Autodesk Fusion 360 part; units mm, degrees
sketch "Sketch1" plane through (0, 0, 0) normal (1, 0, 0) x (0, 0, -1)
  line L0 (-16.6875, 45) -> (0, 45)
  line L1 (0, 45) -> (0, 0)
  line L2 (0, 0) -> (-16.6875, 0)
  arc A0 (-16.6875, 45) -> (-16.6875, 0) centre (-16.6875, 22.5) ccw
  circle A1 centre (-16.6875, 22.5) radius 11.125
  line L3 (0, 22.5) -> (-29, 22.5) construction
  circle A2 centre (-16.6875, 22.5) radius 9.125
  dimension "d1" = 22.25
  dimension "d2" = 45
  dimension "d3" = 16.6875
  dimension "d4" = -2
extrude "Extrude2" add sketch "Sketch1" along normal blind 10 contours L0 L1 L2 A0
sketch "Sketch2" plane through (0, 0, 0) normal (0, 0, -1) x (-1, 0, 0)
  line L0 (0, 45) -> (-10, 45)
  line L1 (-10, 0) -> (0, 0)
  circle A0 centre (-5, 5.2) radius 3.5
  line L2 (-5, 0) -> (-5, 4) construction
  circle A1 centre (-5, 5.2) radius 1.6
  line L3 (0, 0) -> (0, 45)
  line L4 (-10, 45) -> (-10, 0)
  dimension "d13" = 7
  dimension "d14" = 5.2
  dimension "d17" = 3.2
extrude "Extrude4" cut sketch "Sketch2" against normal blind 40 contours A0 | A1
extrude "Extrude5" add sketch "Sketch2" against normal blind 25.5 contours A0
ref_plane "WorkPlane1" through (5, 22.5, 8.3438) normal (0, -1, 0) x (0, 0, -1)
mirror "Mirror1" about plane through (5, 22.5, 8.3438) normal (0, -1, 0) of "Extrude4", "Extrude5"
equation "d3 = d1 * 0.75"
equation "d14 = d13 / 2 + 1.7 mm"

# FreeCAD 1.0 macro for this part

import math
import FreeCAD as App
import Part
import Sketcher
Q = App.Units.Quantity

doc = App.newDocument("Part")
body = doc.addObject("PartDesign::Body", "Body")

sketch1 = body.newObject("Sketcher::SketchObject", "Sketch")
sketch1.AttachmentSupport = (doc.getObject("YZ_Plane"), [""])
sketch1.MapMode = "FlatFace"
sketch1.addGeometry(Part.LineSegment(App.Vector(45, 0, 0), App.Vector(45, 17, 0)), False)
sketch1.addGeometry(Part.ArcOfCircle(Part.Circle(App.Vector(22, 17, 0), App.Vector(0, 0, 1), 22), math.radians(0), math.radians(180)), False)
sketch1.addGeometry(Part.LineSegment(App.Vector(0, 17, 0), App.Vector(0, 0, 0)), False)
sketch1.addGeometry(Part.LineSegment(App.Vector(0, 0, 0), App.Vector(45, 0, 0)), False)
sketch1.addGeometry(Part.Circle(App.Vector(22, 17, 0), App.Vector(0, 0, 1), 11), False)
sketch1.addConstraint(Sketcher.Constraint("Tangent", 0, 2, 1, 1))
sketch1.addConstraint(Sketcher.Constraint("Tangent", 1, 2, 2, 1))
sketch1.addConstraint(Sketcher.Constraint("Coincident", 2, 2, 3, 1))
sketch1.addConstraint(Sketcher.Constraint("Coincident", 3, 2, 0, 1))
sketch1.addConstraint(Sketcher.Constraint("Vertical", 0))
sketch1.addConstraint(Sketcher.Constraint("Vertical", 2))
sketch1.addConstraint(Sketcher.Constraint("Horizontal", 3))
sketch1.addConstraint(Sketcher.Constraint("Coincident", 2, 2, -1, 1))
sketch1.addConstraint(Sketcher.Constraint("Coincident", 4, 3, 1, 3))
sketch1.addConstraint(Sketcher.Constraint("Radius", 1, Q("22.5 mm")))
sketch1.addConstraint(Sketcher.Constraint("Diameter", 4, Q("22.25 mm")))
sketch1.addConstraint(Sketcher.Constraint("DistanceY", 0, 1, 0, 2, Q("16.6875 mm")))
pad1 = body.newObject("PartDesign::Pad", "Pad")
pad1.Profile = sketch1
pad1.Length = 10

sketch2 = body.newObject("Sketcher::SketchObject", "Sketch001")
sketch2.AttachmentSupport = (doc.getObject("XY_Plane"), [""])
sketch2.MapMode = "FlatFace"
sketch2.addGeometry(Part.Circle(App.Vector(5, 5.2, 0), App.Vector(0, 0, 1), 3.5), False)
sketch2.addConstraint(Sketcher.Constraint("Diameter", 0, Q("7 mm")))
sketch2.addConstraint(Sketcher.Constraint("DistanceY", -1, 1, 0, 3, Q("5.2 mm")))
sketch2.addConstraint(Sketcher.Constraint("DistanceX", -1, 1, 0, 3, Q("5 mm")))
pocket1 = body.newObject("PartDesign::Pocket", "Pocket")
pocket1.Profile = sketch2
pocket1.Length = 40
pocket1.Reversed = True

sketch3 = body.newObject("Sketcher::SketchObject", "Sketch002")
sketch3.AttachmentSupport = (doc.getObject("XY_Plane"), [""])
sketch3.MapMode = "FlatFace"
sketch3.addGeometry(Part.Circle(App.Vector(5, 5.2, 0), App.Vector(0, 0, 1), 3.5), False)
sketch3.addGeometry(Part.Circle(App.Vector(5, 5.2, 0), App.Vector(0, 0, 1), 1.6), False)
sketch3.addConstraint(Sketcher.Constraint("Coincident", 1, 3, 0, 3))
sketch3.addConstraint(Sketcher.Constraint("Diameter", 0, Q("7 mm")))
sketch3.addConstraint(Sketcher.Constraint("Diameter", 1, Q("3.2 mm")))
sketch3.addConstraint(Sketcher.Constraint("DistanceY", -1, 1, 0, 3, Q("5.2 mm")))
sketch3.addConstraint(Sketcher.Constraint("DistanceX", -1, 1, 0, 3, Q("5 mm")))
pad2 = body.newObject("PartDesign::Pad", "Pad001")
pad2.Profile = sketch3
pad2.Length = 25.5
doc.recompute()

datumplane = body.newObject("PartDesign::Plane", "DatumPlane")
datumplane.AttachmentSupport = (doc.getObject("XZ_Plane"), [""])
datumplane.MapMode = "FlatFace"
datumplane.AttachmentOffset = App.Placement(App.Vector(0, 0, -22.5), App.Rotation())
mirrored = body.newObject("PartDesign::Mirrored", "Mirrored")
mirrored.Originals = [pocket1, pad2]
mirrored.MirrorPlane = (datumplane, [""])
body.Tip = mirrored

doc.recompute()
